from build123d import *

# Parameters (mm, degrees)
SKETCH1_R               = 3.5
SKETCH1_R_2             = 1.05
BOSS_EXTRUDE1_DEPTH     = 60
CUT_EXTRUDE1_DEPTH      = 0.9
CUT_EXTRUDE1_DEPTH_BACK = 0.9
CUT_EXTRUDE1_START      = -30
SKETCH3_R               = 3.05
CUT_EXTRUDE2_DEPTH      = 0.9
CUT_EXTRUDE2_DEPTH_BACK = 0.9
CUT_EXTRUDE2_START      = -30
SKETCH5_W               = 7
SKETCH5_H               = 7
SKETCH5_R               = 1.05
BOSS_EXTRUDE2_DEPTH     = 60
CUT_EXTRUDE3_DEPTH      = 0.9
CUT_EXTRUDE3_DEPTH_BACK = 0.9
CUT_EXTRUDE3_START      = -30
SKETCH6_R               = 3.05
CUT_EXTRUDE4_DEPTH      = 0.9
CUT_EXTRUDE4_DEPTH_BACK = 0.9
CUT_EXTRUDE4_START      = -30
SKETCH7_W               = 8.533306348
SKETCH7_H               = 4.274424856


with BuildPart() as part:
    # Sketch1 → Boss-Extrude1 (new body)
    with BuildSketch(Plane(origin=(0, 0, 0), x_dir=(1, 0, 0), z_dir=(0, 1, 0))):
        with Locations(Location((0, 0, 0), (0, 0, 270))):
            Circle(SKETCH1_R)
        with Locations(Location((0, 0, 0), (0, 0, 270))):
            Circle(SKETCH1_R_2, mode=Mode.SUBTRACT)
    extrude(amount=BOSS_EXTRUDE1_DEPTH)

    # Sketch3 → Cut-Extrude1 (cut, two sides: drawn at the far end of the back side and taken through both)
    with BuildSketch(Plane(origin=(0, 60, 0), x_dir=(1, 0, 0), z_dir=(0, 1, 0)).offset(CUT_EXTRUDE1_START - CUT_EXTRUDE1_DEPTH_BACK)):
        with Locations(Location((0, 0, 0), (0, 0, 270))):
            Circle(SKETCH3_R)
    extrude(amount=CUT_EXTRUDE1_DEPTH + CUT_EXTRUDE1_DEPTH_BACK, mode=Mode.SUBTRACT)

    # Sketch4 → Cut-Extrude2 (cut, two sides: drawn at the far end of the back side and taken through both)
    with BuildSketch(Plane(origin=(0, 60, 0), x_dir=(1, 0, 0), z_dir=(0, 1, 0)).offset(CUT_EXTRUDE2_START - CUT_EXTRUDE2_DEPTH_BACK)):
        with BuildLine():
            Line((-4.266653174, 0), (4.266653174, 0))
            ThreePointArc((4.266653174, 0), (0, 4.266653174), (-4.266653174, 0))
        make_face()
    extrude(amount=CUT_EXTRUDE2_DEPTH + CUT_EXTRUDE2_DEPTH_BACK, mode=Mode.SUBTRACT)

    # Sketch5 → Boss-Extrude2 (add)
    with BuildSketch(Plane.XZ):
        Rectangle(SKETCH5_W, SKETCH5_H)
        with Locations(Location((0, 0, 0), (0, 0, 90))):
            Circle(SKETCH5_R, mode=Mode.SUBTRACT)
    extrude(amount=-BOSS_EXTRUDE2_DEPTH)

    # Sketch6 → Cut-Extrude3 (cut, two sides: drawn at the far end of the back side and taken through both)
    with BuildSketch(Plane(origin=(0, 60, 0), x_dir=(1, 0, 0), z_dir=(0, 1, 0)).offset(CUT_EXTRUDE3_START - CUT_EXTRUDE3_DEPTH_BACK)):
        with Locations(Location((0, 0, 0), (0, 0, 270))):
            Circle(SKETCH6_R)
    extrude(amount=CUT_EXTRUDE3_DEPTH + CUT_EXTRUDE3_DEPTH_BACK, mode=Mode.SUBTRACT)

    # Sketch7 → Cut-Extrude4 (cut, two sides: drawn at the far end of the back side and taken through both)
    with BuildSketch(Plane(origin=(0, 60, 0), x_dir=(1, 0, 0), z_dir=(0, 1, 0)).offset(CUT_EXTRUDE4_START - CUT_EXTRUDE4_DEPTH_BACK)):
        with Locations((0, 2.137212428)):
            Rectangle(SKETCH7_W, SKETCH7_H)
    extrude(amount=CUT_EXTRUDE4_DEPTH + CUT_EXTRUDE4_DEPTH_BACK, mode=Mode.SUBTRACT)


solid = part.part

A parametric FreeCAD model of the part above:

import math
import FreeCAD as App
import Part
import Sketcher
from FreeCAD import Vector


def add_polygon(sketch, points):
    """Adds a closed chain of lines whose ends are joined by coincident constraints."""
    first, n = sketch.GeometryCount, len(points)
    for a, b in zip(points, points[1:] + points[:1]):
        sketch.addGeometry(Part.LineSegment(App.Vector(*a, 0), App.Vector(*b, 0)), False)
    for i in range(n):
        sketch.addConstraint(Sketcher.Constraint("Coincident", first + i, 2, first + (i + 1) % n, 1))

doc = App.newDocument("Part")
body = doc.addObject("PartDesign::Body", "Body")

# Sketch on XZ plane
sketch1 = body.newObject("Sketcher::SketchObject", "Sketch")
sketch1.AttachmentSupport = (doc.getObject("XZ_Plane"), [""])
sketch1.MapMode = "FlatFace"
sketch1.addGeometry([
    Part.Circle(Vector(0, 0, 0), Vector(0, 0, 1), 3.5),
    Part.Circle(Vector(0, 0, 0), Vector(0, 0, 1), 1.05),
], False)
sketch1.addConstraint([
    Sketcher.Constraint("Coincident", 0, 3, -1, 1),
    Sketcher.Constraint("Coincident", 1, 3, -1, 1),
    Sketcher.Constraint("Diameter", 0, 7.0),
    Sketcher.Constraint("Diameter", 1, 2.1),
])
pad1 = body.newObject("PartDesign::Pad", "Pad")
pad1.Profile = sketch1
pad1.Length = 60
pad1.Reversed = True

# Sketch on XZ plane
sketch2 = body.newObject("Sketcher::SketchObject", "Sketch001")
sketch2.AttachmentSupport = (doc.getObject("XZ_Plane"), [""])
sketch2.MapMode = "FlatFace"
sketch2.AttachmentOffset = App.Placement(Vector(0, 0, -30), App.Rotation())
sketch2.addGeometry(Part.Circle(Vector(0, 0, 0), Vector(0, 0, 1), 3.05), False)
sketch2.addConstraint([
    Sketcher.Constraint("Coincident", 0, 3, -1, 1),
    Sketcher.Constraint("Diameter", 0, 6.1),
])
pocket1 = body.newObject("PartDesign::Pocket", "Pocket")
pocket1.Profile = sketch2
pocket1.Type = "TwoLengths"
pocket1.Length = 0.9
pocket1.Length2 = 0.9

# Sketch on XZ plane
sketch3 = body.newObject("Sketcher::SketchObject", "Sketch002")
sketch3.AttachmentSupport = (doc.getObject("XZ_Plane"), [""])
sketch3.MapMode = "FlatFace"
sketch3.AttachmentOffset = App.Placement(Vector(0, 0, -30), App.Rotation())
sketch3.addGeometry([
    Part.LineSegment(Vector(-4.266653, 0, 0), Vector(4.266653, 0, 0)),
    Part.ArcOfCircle(Part.Circle(Vector(0, 0, 0), Vector(0, 0, 1), 4.266653), math.radians(180), math.radians(360)),
], False)
sketch3.addConstraint([
    Sketcher.Constraint("Coincident", 0, 1, 1, 1),
    Sketcher.Constraint("Coincident", 1, 2, 0, 2),
    Sketcher.Constraint("Horizontal", 0),
    Sketcher.Constraint("Coincident", 1, 3, -1, 1),
    Sketcher.Constraint("PointOnObject", 0, 1, -1),
    Sketcher.Constraint("Radius", 1, 4.266653),
])
pocket2 = body.newObject("PartDesign::Pocket", "Pocket001")
pocket2.Profile = sketch3
pocket2.Type = "TwoLengths"
pocket2.Length = 0.9
pocket2.Length2 = 0.9

# Sketch on XZ plane
sketch4 = body.newObject("Sketcher::SketchObject", "Sketch003")
sketch4.AttachmentSupport = (doc.getObject("XZ_Plane"), [""])
sketch4.MapMode = "FlatFace"
add_polygon(sketch4, [(-3.5, 3.5), (-3.5, -3.5), (3.5, -3.5), (3.5, 3.5)])  # lines 0-3
sketch4.addGeometry(Part.Circle(Vector(0, 0, 0), Vector(0, 0, 1), 1.05), False)  # 4
sketch4.addConstraint([
    Sketcher.Constraint("Vertical", 0),
    Sketcher.Constraint("Horizontal", 1),
    Sketcher.Constraint("Vertical", 2),
    Sketcher.Constraint("Horizontal", 3),
    Sketcher.Constraint("Coincident", 4, 3, -1, 1),
    Sketcher.Constraint("Symmetric", 0, 2, 2, 2, -1, 1),
    Sketcher.Constraint("Equal", 3, 0),
    Sketcher.Constraint("Diameter", 4, 2.1),
    Sketcher.Constraint("DistanceX", 1, 1, 1, 2, 7.0),
])
pad2 = body.newObject("PartDesign::Pad", "Pad001")
pad2.Profile = sketch4
pad2.Length = 60
pad2.Reversed = True

# Sketch on XZ plane
sketch5 = body.newObject("Sketcher::SketchObject", "Sketch004")
sketch5.AttachmentSupport = (doc.getObject("XZ_Plane"), [""])
sketch5.MapMode = "FlatFace"
sketch5.AttachmentOffset = App.Placement(Vector(0, 0, -30), App.Rotation())
sketch5.addGeometry(Part.Circle(Vector(0, 0, 0), Vector(0, 0, 1), 3.05), False)
sketch5.addConstraint([
    Sketcher.Constraint("Coincident", 0, 3, -1, 1),
    Sketcher.Constraint("Diameter", 0, 6.1),
])
pocket3 = body.newObject("PartDesign::Pocket", "Pocket002")
pocket3.Profile = sketch5
pocket3.Type = "TwoLengths"
pocket3.Length = 0.9
pocket3.Length2 = 0.9

# Sketch on XZ plane
sketch6 = body.newObject("Sketcher::SketchObject", "Sketch005")
sketch6.AttachmentSupport = (doc.getObject("XZ_Plane"), [""])
sketch6.MapMode = "FlatFace"
sketch6.AttachmentOffset = App.Placement(Vector(0, 0, -30), App.Rotation())
add_polygon(sketch6, [(-4.266653, -4.274425), (-4.266653, 0), (4.266653, 0), (4.266653, -4.274425)])  # lines 0-3
sketch6.addConstraint([
    Sketcher.Constraint("Vertical", 0),
    Sketcher.Constraint("Horizontal", 1),
    Sketcher.Constraint("Vertical", 2),
    Sketcher.Constraint("Horizontal", 3),
    Sketcher.Constraint("Symmetric", 0, 2, 1, 2, -1, 1),
    Sketcher.Constraint("DistanceX", 1, 1, 1, 2, 8.533306),
    Sketcher.Constraint("DistanceY", 0, 1, 0, 2, 4.274425),
])
pocket4 = body.newObject("PartDesign::Pocket", "Pocket003")
pocket4.Profile = sketch6
pocket4.Type = "TwoLengths"
pocket4.Length = 0.9
pocket4.Length2 = 0.9

doc.recompute()
